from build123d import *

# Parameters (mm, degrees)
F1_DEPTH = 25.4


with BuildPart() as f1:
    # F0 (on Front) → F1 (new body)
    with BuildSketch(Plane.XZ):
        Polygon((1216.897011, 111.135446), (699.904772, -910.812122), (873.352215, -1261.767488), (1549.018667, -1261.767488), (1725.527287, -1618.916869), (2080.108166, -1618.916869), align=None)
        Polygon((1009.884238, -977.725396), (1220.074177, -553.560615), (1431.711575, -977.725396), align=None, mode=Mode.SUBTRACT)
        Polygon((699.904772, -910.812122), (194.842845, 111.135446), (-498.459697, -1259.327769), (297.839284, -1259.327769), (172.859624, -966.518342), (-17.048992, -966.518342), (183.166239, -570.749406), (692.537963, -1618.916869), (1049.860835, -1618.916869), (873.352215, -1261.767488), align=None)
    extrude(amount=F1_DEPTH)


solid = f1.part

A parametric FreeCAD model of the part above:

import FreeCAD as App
import Part
import Sketcher
from FreeCAD import Vector
Q = App.Units.Quantity

doc = App.newDocument("Part")
body = doc.addObject("PartDesign::Body", "Body")

# Sketch on XZ plane
sketch1 = body.newObject("Sketcher::SketchObject", "Sketch")
sketch1.AttachmentSupport = (doc.getObject("XZ_Plane"), [""])
sketch1.MapMode = "FlatFace"
sketch1.addGeometry(Part.LineSegment(Vector(1217, 111, 0), Vector(700, -911, 0)), False)
sketch1.addGeometry(Part.LineSegment(Vector(700, -911, 0), Vector(195, 111, 0)), False)
sketch1.addGeometry(Part.LineSegment(Vector(195, 111, 0), Vector(-498, -1259, 0)), False)
sketch1.addGeometry(Part.LineSegment(Vector(-498, -1259, 0), Vector(298, -1259, 0)), False)
sketch1.addGeometry(Part.LineSegment(Vector(298, -1259, 0), Vector(173, -967, 0)), False)
sketch1.addGeometry(Part.LineSegment(Vector(173, -967, 0), Vector(-17, -967, 0)), False)
sketch1.addGeometry(Part.LineSegment(Vector(-17, -967, 0), Vector(183, -571, 0)), False)
sketch1.addGeometry(Part.LineSegment(Vector(183, -571, 0), Vector(693, -1619, 0)), False)
sketch1.addGeometry(Part.LineSegment(Vector(693, -1619, 0), Vector(1050, -1619, 0)), False)
sketch1.addGeometry(Part.LineSegment(Vector(1050, -1619, 0), Vector(873, -1262, 0)), False)
sketch1.addGeometry(Part.LineSegment(Vector(873, -1262, 0), Vector(1549, -1262, 0)), False)
sketch1.addGeometry(Part.LineSegment(Vector(1549, -1262, 0), Vector(1726, -1619, 0)), False)
sketch1.addGeometry(Part.LineSegment(Vector(1726, -1619, 0), Vector(2080, -1619, 0)), False)
sketch1.addGeometry(Part.LineSegment(Vector(2080, -1619, 0), Vector(1217, 111, 0)), False)
sketch1.addGeometry(Part.LineSegment(Vector(1432, -978, 0), Vector(1010, -978, 0)), False)
sketch1.addGeometry(Part.LineSegment(Vector(1010, -978, 0), Vector(1220, -554, 0)), False)
sketch1.addGeometry(Part.LineSegment(Vector(1220, -554, 0), Vector(1432, -978, 0)), False)
sketch1.addConstraint(Sketcher.Constraint("Coincident", 0, 2, 1, 1))
sketch1.addConstraint(Sketcher.Constraint("Coincident", 1, 2, 2, 1))
sketch1.addConstraint(Sketcher.Constraint("Coincident", 2, 2, 3, 1))
sketch1.addConstraint(Sketcher.Constraint("Coincident", 3, 2, 4, 1))
sketch1.addConstraint(Sketcher.Constraint("Coincident", 4, 2, 5, 1))
sketch1.addConstraint(Sketcher.Constraint("Coincident", 5, 2, 6, 1))
sketch1.addConstraint(Sketcher.Constraint("Coincident", 6, 2, 7, 1))
sketch1.addConstraint(Sketcher.Constraint("Coincident", 7, 2, 8, 1))
sketch1.addConstraint(Sketcher.Constraint("Coincident", 8, 2, 9, 1))
sketch1.addConstraint(Sketcher.Constraint("Coincident", 9, 2, 10, 1))
sketch1.addConstraint(Sketcher.Constraint("Coincident", 10, 2, 11, 1))
sketch1.addConstraint(Sketcher.Constraint("Coincident", 11, 2, 12, 1))
sketch1.addConstraint(Sketcher.Constraint("Coincident", 12, 2, 13, 1))
sketch1.addConstraint(Sketcher.Constraint("Coincident", 13, 2, 0, 1))
sketch1.addConstraint(Sketcher.Constraint("Coincident", 14, 2, 15, 1))
sketch1.addConstraint(Sketcher.Constraint("Coincident", 15, 2, 16, 1))
sketch1.addConstraint(Sketcher.Constraint("Coincident", 16, 2, 14, 1))
sketch1.addConstraint(Sketcher.Constraint("Horizontal", 3))
sketch1.addConstraint(Sketcher.Constraint("Horizontal", 5))
sketch1.addConstraint(Sketcher.Constraint("Horizontal", 8))
sketch1.addConstraint(Sketcher.Constraint("Horizontal", 10))
sketch1.addConstraint(Sketcher.Constraint("Horizontal", 12))
sketch1.addConstraint(Sketcher.Constraint("Horizontal", 14))
sketch1.addConstraint(Sketcher.Constraint("Parallel", 0, 2))
sketch1.addConstraint(Sketcher.Constraint("Parallel", 2, 6))
sketch1.addConstraint(Sketcher.Constraint("Parallel", 1, 9))
sketch1.addConstraint(Sketcher.Constraint("Parallel", 9, 11))
sketch1.addConstraint(Sketcher.Constraint("Parallel", 13, 16))
sketch1.addConstraint(Sketcher.Constraint("Horizontal", 8, 2, 11, 2))
sketch1.addConstraint(Sketcher.Constraint("Horizontal", 1, 2, 13, 2))
sketch1.addConstraint(Sketcher.Constraint("Distance", 0, Q("1145.276302 mm")))
sketch1.addConstraint(Sketcher.Constraint("DistanceX", 3, 1, 3, 2, Q("796.298981 mm")))
sketch1.addConstraint(Sketcher.Constraint("DistanceX", 8, 1, 8, 2, Q("357.322872 mm")))
sketch1.addConstraint(Sketcher.Constraint("DistanceX", 10, 1, 10, 2, Q("675.666452 mm")))
sketch1.addConstraint(Sketcher.Constraint("DistanceX", 12, 1, 12, 2, Q("354.580879 mm")))
sketch1.addConstraint(Sketcher.Constraint("DistanceY", 7, 2, 3, 2, Q("359.5891 mm")))
sketch1.addConstraint(Sketcher.Constraint("DistanceX", 10, 2, 12, 2, Q("531.089499 mm")))
sketch1.addConstraint(Sketcher.Constraint("DistanceX", 15, 2, 16, 2, Q("211.637398 mm")))
sketch1.addConstraint(Sketcher.Constraint("Distance", 2, Q("1535.850852 mm")))
sketch1.addConstraint(Sketcher.Constraint("Distance", 6, Q("443.53037 mm")))
sketch1.addConstraint(Sketcher.Constraint("Distance", 9, Q("398.385458 mm")))
sketch1.addConstraint(Sketcher.Constraint("Distance", 13, Q("1933.446278 mm")))
sketch1.addConstraint(Sketcher.Constraint("Distance", 15, Q("473.387338 mm")))
sketch1.addConstraint(Sketcher.Constraint("DistanceX", 5, 2, 5, 1, Q("189.908616 mm")))
sketch1.addConstraint(Sketcher.Constraint("DistanceX", 14, 2, 14, 1, Q("421.827337 mm")))
sketch1.addConstraint(Sketcher.Constraint("DistanceX", -1, 1, 0, 2, Q("699.904772 mm")))
sketch1.addConstraint(Sketcher.Constraint("DistanceY", 0, 2, -1, 1, Q("910.812122 mm")))
sketch1.addConstraint(Sketcher.Constraint("DistanceY", 4, 2, -1, 1, Q("966.518342 mm")))
sketch1.addConstraint(Sketcher.Constraint("DistanceX", 5, 2, -1, 1, Q("17.048992 mm")))
sketch1.addConstraint(Sketcher.Constraint("DistanceX", -1, 1, 14, 2, Q("1009.884238 mm")))
sketch1.addConstraint(Sketcher.Constraint("DistanceY", 9, 2, 14, 2, Q("284.042092 mm")))
pad1 = body.newObject("PartDesign::Pad", "Pad")
pad1.Profile = sketch1
pad1.Length = Q("1 in")

doc.recompute()
